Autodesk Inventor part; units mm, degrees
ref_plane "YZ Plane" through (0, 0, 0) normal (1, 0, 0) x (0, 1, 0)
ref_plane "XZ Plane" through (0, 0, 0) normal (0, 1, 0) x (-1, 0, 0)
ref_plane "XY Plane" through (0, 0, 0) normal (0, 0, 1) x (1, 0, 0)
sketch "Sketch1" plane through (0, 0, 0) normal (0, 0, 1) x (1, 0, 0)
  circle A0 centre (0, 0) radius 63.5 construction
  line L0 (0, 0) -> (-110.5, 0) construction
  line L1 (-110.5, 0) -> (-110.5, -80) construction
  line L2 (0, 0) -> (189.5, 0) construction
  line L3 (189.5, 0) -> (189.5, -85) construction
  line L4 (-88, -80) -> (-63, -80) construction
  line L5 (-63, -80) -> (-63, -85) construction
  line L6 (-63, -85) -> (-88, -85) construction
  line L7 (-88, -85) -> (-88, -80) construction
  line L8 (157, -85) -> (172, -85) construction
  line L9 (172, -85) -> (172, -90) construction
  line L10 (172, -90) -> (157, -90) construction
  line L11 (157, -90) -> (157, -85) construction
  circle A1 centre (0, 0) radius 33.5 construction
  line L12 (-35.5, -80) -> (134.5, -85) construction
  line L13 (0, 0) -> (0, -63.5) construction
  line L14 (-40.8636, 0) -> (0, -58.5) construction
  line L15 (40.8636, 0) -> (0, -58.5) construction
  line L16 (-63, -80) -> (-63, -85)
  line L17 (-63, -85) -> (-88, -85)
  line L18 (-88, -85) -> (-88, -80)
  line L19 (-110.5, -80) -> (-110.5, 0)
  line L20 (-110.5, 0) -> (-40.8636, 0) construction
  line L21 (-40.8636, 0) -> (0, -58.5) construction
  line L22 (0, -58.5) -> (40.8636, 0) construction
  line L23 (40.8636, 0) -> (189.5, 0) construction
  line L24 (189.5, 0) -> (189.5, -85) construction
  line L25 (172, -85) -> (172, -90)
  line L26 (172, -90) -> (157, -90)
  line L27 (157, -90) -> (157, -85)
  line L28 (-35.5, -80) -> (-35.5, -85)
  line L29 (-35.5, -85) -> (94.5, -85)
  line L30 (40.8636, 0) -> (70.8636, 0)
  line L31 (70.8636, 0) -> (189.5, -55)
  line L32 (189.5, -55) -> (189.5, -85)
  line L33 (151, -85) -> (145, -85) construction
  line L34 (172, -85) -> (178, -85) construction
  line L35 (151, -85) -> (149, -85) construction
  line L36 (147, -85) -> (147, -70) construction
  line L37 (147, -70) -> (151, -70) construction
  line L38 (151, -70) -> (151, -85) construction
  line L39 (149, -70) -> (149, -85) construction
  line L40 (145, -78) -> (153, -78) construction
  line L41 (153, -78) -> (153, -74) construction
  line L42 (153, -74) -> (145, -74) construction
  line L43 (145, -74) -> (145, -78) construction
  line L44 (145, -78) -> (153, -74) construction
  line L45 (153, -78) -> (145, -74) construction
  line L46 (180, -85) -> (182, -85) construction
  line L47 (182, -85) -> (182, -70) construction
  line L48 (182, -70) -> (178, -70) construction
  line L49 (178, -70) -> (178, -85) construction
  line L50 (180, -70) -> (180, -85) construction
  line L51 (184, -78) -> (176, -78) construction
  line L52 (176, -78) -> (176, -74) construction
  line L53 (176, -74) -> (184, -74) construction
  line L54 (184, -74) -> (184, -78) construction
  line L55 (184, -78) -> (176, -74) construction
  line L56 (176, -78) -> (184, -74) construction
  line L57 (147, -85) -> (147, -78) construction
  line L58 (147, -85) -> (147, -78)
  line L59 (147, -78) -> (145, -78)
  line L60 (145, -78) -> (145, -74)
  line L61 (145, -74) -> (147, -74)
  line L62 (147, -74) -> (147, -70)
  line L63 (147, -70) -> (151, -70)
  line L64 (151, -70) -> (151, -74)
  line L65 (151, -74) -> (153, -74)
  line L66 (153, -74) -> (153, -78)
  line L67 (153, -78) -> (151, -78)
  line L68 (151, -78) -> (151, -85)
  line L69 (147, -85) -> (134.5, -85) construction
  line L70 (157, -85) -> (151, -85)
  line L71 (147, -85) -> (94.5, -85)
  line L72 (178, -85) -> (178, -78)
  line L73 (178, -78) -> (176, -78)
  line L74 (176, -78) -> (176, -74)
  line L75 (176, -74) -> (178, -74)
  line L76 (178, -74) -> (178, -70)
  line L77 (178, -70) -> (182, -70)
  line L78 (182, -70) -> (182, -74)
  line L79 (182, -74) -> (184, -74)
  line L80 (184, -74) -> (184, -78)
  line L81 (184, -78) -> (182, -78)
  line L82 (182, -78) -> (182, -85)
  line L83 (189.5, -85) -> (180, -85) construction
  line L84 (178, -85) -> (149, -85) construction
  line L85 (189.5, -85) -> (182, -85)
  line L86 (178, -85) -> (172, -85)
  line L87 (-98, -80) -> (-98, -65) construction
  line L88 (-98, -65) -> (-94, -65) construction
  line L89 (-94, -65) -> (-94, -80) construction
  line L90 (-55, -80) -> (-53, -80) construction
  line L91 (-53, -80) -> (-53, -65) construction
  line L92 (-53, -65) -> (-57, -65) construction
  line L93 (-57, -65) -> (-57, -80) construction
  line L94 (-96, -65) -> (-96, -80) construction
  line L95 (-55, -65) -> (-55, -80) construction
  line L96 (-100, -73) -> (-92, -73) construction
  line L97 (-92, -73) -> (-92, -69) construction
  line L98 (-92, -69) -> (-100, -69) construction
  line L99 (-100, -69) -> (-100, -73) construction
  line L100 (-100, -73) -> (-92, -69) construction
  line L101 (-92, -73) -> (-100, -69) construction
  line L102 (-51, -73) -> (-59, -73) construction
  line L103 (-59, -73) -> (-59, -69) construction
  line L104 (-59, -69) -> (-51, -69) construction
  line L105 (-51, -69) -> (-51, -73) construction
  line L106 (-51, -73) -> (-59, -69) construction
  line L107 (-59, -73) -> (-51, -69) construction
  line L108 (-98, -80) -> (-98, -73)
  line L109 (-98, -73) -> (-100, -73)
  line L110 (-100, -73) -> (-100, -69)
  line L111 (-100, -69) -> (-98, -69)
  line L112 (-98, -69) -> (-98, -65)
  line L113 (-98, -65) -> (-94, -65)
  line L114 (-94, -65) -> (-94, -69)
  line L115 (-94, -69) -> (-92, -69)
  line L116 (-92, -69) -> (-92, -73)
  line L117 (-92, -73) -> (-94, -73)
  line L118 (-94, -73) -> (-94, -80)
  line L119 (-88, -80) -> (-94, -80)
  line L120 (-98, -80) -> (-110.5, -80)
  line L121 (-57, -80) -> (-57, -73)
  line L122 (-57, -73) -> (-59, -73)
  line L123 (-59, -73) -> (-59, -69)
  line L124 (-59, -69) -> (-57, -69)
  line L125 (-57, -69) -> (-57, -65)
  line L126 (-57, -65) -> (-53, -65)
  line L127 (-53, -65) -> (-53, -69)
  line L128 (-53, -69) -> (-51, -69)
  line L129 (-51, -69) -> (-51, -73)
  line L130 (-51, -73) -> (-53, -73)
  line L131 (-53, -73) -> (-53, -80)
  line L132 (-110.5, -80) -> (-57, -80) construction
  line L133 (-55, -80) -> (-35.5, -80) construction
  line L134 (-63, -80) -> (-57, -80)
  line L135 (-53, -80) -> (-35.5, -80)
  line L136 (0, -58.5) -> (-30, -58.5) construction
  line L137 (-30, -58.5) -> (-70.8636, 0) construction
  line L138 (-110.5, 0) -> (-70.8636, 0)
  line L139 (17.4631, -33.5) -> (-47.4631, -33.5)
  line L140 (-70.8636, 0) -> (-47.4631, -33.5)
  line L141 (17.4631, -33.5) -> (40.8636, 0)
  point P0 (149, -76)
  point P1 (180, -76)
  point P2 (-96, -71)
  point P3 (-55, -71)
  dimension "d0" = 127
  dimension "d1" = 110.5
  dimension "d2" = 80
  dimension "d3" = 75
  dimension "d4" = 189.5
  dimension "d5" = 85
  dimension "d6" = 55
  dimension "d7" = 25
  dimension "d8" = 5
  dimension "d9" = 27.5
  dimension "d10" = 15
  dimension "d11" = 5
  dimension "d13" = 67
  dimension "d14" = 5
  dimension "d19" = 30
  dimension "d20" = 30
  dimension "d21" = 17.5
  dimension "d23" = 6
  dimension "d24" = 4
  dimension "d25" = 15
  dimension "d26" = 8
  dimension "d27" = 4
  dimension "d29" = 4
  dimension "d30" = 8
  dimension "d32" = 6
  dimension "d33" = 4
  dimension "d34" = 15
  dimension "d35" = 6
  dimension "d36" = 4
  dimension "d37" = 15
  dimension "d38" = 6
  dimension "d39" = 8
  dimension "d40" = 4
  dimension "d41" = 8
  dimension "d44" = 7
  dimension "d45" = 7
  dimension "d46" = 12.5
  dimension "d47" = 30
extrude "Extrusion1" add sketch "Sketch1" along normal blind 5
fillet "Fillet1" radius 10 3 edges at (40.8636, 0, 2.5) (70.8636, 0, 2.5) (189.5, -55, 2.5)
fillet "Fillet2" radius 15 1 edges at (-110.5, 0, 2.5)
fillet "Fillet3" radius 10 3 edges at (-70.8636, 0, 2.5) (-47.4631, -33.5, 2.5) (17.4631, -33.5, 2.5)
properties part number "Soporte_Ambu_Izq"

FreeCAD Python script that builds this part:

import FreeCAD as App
import Part
import Sketcher
Q = App.Units.Quantity


def edges_at(feature, points):
    """Names of the edges that pass closest to the given points."""
    edges = feature.Shape.Edges
    near = lambda p: min(range(len(edges)), key=lambda i: edges[i].distToShape(Part.Vertex(*p))[0])
    return sorted({f"Edge{near(p) + 1}" for p in points})


def add_polygon(sketch, points):
    """Adds a closed chain of lines whose ends are joined by coincident constraints."""
    first, n = sketch.GeometryCount, len(points)
    for a, b in zip(points, points[1:] + points[:1]):
        sketch.addGeometry(Part.LineSegment(App.Vector(*a, 0), App.Vector(*b, 0)), False)
    for i in range(n):
        sketch.addConstraint(Sketcher.Constraint("Coincident", first + i, 2, first + (i + 1) % n, 1))

doc = App.newDocument("Part")
body = doc.addObject("PartDesign::Body", "Body")

sketch1 = body.newObject("Sketcher::SketchObject", "Sketch")
sketch1.AttachmentSupport = (doc.getObject("XY_Plane"), [""])
sketch1.MapMode = "FlatFace"
add_polygon(sketch1, [(-63, -85), (-63, -80), (-57, -80), (-57, -73), (-59, -73), (-59, -69), (-57, -69), (-57, -65), (-53, -65), (-53, -69), (-51, -69), (-51, -73), (-53, -73), (-53, -80), (-35.5, -80), (-35.5, -85), (147, -85), (147, -78), (145, -78), (145, -74), (147, -74), (147, -70), (151, -70), (151, -74), (153, -74), (153, -78), (151, -78), (151, -85), (157, -85), (157, -90), (172, -90), (172, -85), (178, -85), (178, -78), (176, -78), (176, -74), (178, -74), (178, -70), (182, -70), (182, -74), (184, -74), (184, -78), (182, -78), (182, -85), (189.5, -85), (189.5, -55), (70.9, 0), (40.9, 0), (17.5, -33.5), (-47.5, -33.5), (-70.9, 0), (-110.5, 0), (-110.5, -80), (-98, -80), (-98, -73), (-100, -73), (-100, -69), (-98, -69), (-98, -65), (-94, -65), (-94, -69), (-92, -69), (-92, -73), (-94, -73), (-94, -80), (-88, -80), (-88, -85)])
sketch1.addConstraint([
    Sketcher.Constraint("Vertical", 0),
    Sketcher.Constraint("Horizontal", 1),
    Sketcher.Constraint("Vertical", 2),
    Sketcher.Constraint("Horizontal", 3),
    Sketcher.Constraint("Vertical", 4),
    Sketcher.Constraint("Horizontal", 5),
    Sketcher.Constraint("Vertical", 6),
    Sketcher.Constraint("Horizontal", 7),
    Sketcher.Constraint("Vertical", 8),
    Sketcher.Constraint("Horizontal", 9),
    Sketcher.Constraint("Vertical", 10),
    Sketcher.Constraint("Horizontal", 11),
    Sketcher.Constraint("Vertical", 12),
    Sketcher.Constraint("Horizontal", 13),
    Sketcher.Constraint("Vertical", 14),
    Sketcher.Constraint("Horizontal", 15),
    Sketcher.Constraint("Vertical", 16),
    Sketcher.Constraint("Horizontal", 17),
    Sketcher.Constraint("Vertical", 18),
    Sketcher.Constraint("Horizontal", 19),
    Sketcher.Constraint("Vertical", 20),
    Sketcher.Constraint("Horizontal", 21),
    Sketcher.Constraint("Vertical", 22),
    Sketcher.Constraint("Horizontal", 23),
    Sketcher.Constraint("Vertical", 24),
    Sketcher.Constraint("Horizontal", 25),
    Sketcher.Constraint("Vertical", 26),
    Sketcher.Constraint("Horizontal", 27),
    Sketcher.Constraint("Vertical", 28),
    Sketcher.Constraint("Horizontal", 29),
    Sketcher.Constraint("Vertical", 30),
    Sketcher.Constraint("Horizontal", 31),
    Sketcher.Constraint("Vertical", 32),
    Sketcher.Constraint("Horizontal", 33),
    Sketcher.Constraint("Vertical", 34),
    Sketcher.Constraint("Horizontal", 35),
    Sketcher.Constraint("Vertical", 36),
    Sketcher.Constraint("Horizontal", 37),
    Sketcher.Constraint("Vertical", 38),
    Sketcher.Constraint("Horizontal", 39),
    Sketcher.Constraint("Vertical", 40),
    Sketcher.Constraint("Horizontal", 41),
    Sketcher.Constraint("Vertical", 42),
    Sketcher.Constraint("Horizontal", 43),
    Sketcher.Constraint("Vertical", 44),
    Sketcher.Constraint("Horizontal", 46),
    Sketcher.Constraint("Horizontal", 48),
    Sketcher.Constraint("Horizontal", 50),
    Sketcher.Constraint("Vertical", 51),
    Sketcher.Constraint("Horizontal", 52),
    Sketcher.Constraint("Vertical", 53),
    Sketcher.Constraint("Horizontal", 54),
    Sketcher.Constraint("Vertical", 55),
    Sketcher.Constraint("Horizontal", 56),
    Sketcher.Constraint("Vertical", 57),
    Sketcher.Constraint("Horizontal", 58),
    Sketcher.Constraint("Vertical", 59),
    Sketcher.Constraint("Horizontal", 60),
    Sketcher.Constraint("Vertical", 61),
    Sketcher.Constraint("Horizontal", 62),
    Sketcher.Constraint("Vertical", 63),
    Sketcher.Constraint("Horizontal", 64),
    Sketcher.Constraint("Vertical", 65),
    Sketcher.Constraint("Horizontal", 66),
    Sketcher.Constraint("Symmetric", 45, 2, 49, 2, -1, 1),
    Sketcher.Constraint("PointOnObject", 45, 2, -1),
    Sketcher.Constraint("Horizontal", 5, 2, 8, 2),
    Sketcher.Constraint("Horizontal", 3, 2, 10, 2),
    Sketcher.Constraint("Horizontal", 1, 2, 12, 2),
    Sketcher.Constraint("Horizontal", 19, 2, 22, 2),
    Sketcher.Constraint("Horizontal", 17, 2, 24, 2),
    Sketcher.Constraint("Horizontal", 15, 2, 26, 2),
    Sketcher.Constraint("Horizontal", 27, 2, 30, 2),
    Sketcher.Constraint("Horizontal", 25, 2, 32, 2),
    Sketcher.Constraint("Horizontal", 23, 2, 34, 2),
    Sketcher.Constraint("Horizontal", 21, 2, 36, 2),
    Sketcher.Constraint("Horizontal", 35, 2, 38, 2),
    Sketcher.Constraint("Horizontal", 33, 2, 40, 2),
    Sketcher.Constraint("Horizontal", 31, 2, 42, 2),
    Sketcher.Constraint("Horizontal", 13, 2, 51, 2),
    Sketcher.Constraint("Horizontal", 11, 2, 53, 2),
    Sketcher.Constraint("Horizontal", 9, 2, 55, 2),
    Sketcher.Constraint("Horizontal", 7, 2, 57, 2),
    Sketcher.Constraint("Horizontal", 56, 2, 59, 2),
    Sketcher.Constraint("Horizontal", 54, 2, 61, 2),
    Sketcher.Constraint("Horizontal", 52, 2, 63, 2),
    Sketcher.Constraint("Horizontal", 43, 2, 65, 2),
    Sketcher.Constraint("Vertical", 2, 2, 5, 2),
    Sketcher.Constraint("Vertical", 8, 2, 11, 2),
    Sketcher.Constraint("Vertical", 16, 2, 19, 2),
    Sketcher.Constraint("Vertical", 22, 2, 25, 2),
    Sketcher.Constraint("Vertical", 32, 2, 35, 2),
    Sketcher.Constraint("Vertical", 38, 2, 41, 2),
    Sketcher.Constraint("Vertical", 53, 2, 56, 2),
    Sketcher.Constraint("Vertical", 59, 2, 62, 2),
    Sketcher.Constraint("Equal", 5, 9),
    Sketcher.Constraint("Equal", 11, 17),
    Sketcher.Constraint("Equal", 7, 21),
    Sketcher.Constraint("Equal", 19, 23),
    Sketcher.Constraint("Equal", 1, 27),
    Sketcher.Constraint("Equal", 27, 31),
    Sketcher.Constraint("Equal", 25, 33),
    Sketcher.Constraint("Equal", 21, 37),
    Sketcher.Constraint("Equal", 35, 39),
    Sketcher.Constraint("Equal", 41, 54),
    Sketcher.Constraint("Equal", 37, 58),
    Sketcher.Constraint("Equal", 56, 60),
    Sketcher.Constraint("Equal", 31, 64),
    Sketcher.Constraint("Equal", 58, 4),
    Sketcher.Constraint("Equal", 4, 6),
    Sketcher.Constraint("Equal", 12, 16),
    Sketcher.Constraint("Equal", 10, 18),
    Sketcher.Constraint("Equal", 18, 20),
    Sketcher.Constraint("Equal", 14, 28),
    Sketcher.Constraint("Equal", 46, 44),
    Sketcher.Constraint("Equal", 47, 49),
    Sketcher.Constraint("DistanceX", 1, 1, 1, 2, Q("6 mm")),
    Sketcher.Constraint("DistanceX", 7, 1, 7, 2, Q("4 mm")),
    Sketcher.Constraint("DistanceX", 29, 1, 29, 2, Q("15 mm")),
    Sketcher.Constraint("DistanceX", 46, 2, 46, 1, Q("30 mm")),
    Sketcher.Constraint("DistanceX", 66, 1, 66, 2, Q("25 mm")),
    Sketcher.Constraint("DistanceY", 0, 1, 0, 2, Q("5 mm")),
    Sketcher.Constraint("DistanceY", 2, 1, 2, 2, Q("7 mm")),
    Sketcher.Constraint("DistanceY", 51, 2, 51, 1, Q("80 mm")),
    Sketcher.Constraint("DistanceX", 13, 1, 13, 2, Q("17.5 mm")),
    Sketcher.Constraint("DistanceX", 52, 1, 52, 2, Q("12.5 mm")),
    Sketcher.Constraint("DistanceX", -1, 1, 43, 2, Q("189.5 mm")),
    Sketcher.Constraint("DistanceX", 50, 2, -1, 1, Q("110.5 mm")),
    Sketcher.Constraint("DistanceX", 3, 2, 3, 1, Q("2 mm")),
    Sketcher.Constraint("DistanceX", 15, 1, 15, 2, Q("182.5 mm")),
    Sketcher.Constraint("DistanceY", 47, 2, -1, 1, Q("33.5 mm")),
    Sketcher.Constraint("DistanceX", 48, 2, 48, 1, Q("64.9262 mm")),
    Sketcher.Constraint("DistanceX", 50, 2, 50, 1, Q("39.6364 mm")),
])
pad1 = body.newObject("PartDesign::Pad", "Pad")
pad1.Profile = sketch1
pad1.Length = 5
doc.recompute()

fillet = body.newObject("PartDesign::Fillet", "Fillet")
fillet.Base = (pad1, edges_at(pad1, [(40.864, 0, 2.5), (70.864, 0, 2.5), (189.5, -55, 2.5)]))
fillet.Radius = 10
doc.recompute()

fillet2 = body.newObject("PartDesign::Fillet", "Fillet001")
fillet2.Base = (fillet, edges_at(fillet, [(-110.5, 0, 2.5)]))
fillet2.Radius = 15
doc.recompute()

fillet3 = body.newObject("PartDesign::Fillet", "Fillet002")
fillet3.Base = (fillet2, edges_at(fillet2, [(-70.864, 0, 2.5), (-47.463, -33.5, 2.5), (17.463, -33.5, 2.5)]))
fillet3.Radius = 10

doc.recompute()
